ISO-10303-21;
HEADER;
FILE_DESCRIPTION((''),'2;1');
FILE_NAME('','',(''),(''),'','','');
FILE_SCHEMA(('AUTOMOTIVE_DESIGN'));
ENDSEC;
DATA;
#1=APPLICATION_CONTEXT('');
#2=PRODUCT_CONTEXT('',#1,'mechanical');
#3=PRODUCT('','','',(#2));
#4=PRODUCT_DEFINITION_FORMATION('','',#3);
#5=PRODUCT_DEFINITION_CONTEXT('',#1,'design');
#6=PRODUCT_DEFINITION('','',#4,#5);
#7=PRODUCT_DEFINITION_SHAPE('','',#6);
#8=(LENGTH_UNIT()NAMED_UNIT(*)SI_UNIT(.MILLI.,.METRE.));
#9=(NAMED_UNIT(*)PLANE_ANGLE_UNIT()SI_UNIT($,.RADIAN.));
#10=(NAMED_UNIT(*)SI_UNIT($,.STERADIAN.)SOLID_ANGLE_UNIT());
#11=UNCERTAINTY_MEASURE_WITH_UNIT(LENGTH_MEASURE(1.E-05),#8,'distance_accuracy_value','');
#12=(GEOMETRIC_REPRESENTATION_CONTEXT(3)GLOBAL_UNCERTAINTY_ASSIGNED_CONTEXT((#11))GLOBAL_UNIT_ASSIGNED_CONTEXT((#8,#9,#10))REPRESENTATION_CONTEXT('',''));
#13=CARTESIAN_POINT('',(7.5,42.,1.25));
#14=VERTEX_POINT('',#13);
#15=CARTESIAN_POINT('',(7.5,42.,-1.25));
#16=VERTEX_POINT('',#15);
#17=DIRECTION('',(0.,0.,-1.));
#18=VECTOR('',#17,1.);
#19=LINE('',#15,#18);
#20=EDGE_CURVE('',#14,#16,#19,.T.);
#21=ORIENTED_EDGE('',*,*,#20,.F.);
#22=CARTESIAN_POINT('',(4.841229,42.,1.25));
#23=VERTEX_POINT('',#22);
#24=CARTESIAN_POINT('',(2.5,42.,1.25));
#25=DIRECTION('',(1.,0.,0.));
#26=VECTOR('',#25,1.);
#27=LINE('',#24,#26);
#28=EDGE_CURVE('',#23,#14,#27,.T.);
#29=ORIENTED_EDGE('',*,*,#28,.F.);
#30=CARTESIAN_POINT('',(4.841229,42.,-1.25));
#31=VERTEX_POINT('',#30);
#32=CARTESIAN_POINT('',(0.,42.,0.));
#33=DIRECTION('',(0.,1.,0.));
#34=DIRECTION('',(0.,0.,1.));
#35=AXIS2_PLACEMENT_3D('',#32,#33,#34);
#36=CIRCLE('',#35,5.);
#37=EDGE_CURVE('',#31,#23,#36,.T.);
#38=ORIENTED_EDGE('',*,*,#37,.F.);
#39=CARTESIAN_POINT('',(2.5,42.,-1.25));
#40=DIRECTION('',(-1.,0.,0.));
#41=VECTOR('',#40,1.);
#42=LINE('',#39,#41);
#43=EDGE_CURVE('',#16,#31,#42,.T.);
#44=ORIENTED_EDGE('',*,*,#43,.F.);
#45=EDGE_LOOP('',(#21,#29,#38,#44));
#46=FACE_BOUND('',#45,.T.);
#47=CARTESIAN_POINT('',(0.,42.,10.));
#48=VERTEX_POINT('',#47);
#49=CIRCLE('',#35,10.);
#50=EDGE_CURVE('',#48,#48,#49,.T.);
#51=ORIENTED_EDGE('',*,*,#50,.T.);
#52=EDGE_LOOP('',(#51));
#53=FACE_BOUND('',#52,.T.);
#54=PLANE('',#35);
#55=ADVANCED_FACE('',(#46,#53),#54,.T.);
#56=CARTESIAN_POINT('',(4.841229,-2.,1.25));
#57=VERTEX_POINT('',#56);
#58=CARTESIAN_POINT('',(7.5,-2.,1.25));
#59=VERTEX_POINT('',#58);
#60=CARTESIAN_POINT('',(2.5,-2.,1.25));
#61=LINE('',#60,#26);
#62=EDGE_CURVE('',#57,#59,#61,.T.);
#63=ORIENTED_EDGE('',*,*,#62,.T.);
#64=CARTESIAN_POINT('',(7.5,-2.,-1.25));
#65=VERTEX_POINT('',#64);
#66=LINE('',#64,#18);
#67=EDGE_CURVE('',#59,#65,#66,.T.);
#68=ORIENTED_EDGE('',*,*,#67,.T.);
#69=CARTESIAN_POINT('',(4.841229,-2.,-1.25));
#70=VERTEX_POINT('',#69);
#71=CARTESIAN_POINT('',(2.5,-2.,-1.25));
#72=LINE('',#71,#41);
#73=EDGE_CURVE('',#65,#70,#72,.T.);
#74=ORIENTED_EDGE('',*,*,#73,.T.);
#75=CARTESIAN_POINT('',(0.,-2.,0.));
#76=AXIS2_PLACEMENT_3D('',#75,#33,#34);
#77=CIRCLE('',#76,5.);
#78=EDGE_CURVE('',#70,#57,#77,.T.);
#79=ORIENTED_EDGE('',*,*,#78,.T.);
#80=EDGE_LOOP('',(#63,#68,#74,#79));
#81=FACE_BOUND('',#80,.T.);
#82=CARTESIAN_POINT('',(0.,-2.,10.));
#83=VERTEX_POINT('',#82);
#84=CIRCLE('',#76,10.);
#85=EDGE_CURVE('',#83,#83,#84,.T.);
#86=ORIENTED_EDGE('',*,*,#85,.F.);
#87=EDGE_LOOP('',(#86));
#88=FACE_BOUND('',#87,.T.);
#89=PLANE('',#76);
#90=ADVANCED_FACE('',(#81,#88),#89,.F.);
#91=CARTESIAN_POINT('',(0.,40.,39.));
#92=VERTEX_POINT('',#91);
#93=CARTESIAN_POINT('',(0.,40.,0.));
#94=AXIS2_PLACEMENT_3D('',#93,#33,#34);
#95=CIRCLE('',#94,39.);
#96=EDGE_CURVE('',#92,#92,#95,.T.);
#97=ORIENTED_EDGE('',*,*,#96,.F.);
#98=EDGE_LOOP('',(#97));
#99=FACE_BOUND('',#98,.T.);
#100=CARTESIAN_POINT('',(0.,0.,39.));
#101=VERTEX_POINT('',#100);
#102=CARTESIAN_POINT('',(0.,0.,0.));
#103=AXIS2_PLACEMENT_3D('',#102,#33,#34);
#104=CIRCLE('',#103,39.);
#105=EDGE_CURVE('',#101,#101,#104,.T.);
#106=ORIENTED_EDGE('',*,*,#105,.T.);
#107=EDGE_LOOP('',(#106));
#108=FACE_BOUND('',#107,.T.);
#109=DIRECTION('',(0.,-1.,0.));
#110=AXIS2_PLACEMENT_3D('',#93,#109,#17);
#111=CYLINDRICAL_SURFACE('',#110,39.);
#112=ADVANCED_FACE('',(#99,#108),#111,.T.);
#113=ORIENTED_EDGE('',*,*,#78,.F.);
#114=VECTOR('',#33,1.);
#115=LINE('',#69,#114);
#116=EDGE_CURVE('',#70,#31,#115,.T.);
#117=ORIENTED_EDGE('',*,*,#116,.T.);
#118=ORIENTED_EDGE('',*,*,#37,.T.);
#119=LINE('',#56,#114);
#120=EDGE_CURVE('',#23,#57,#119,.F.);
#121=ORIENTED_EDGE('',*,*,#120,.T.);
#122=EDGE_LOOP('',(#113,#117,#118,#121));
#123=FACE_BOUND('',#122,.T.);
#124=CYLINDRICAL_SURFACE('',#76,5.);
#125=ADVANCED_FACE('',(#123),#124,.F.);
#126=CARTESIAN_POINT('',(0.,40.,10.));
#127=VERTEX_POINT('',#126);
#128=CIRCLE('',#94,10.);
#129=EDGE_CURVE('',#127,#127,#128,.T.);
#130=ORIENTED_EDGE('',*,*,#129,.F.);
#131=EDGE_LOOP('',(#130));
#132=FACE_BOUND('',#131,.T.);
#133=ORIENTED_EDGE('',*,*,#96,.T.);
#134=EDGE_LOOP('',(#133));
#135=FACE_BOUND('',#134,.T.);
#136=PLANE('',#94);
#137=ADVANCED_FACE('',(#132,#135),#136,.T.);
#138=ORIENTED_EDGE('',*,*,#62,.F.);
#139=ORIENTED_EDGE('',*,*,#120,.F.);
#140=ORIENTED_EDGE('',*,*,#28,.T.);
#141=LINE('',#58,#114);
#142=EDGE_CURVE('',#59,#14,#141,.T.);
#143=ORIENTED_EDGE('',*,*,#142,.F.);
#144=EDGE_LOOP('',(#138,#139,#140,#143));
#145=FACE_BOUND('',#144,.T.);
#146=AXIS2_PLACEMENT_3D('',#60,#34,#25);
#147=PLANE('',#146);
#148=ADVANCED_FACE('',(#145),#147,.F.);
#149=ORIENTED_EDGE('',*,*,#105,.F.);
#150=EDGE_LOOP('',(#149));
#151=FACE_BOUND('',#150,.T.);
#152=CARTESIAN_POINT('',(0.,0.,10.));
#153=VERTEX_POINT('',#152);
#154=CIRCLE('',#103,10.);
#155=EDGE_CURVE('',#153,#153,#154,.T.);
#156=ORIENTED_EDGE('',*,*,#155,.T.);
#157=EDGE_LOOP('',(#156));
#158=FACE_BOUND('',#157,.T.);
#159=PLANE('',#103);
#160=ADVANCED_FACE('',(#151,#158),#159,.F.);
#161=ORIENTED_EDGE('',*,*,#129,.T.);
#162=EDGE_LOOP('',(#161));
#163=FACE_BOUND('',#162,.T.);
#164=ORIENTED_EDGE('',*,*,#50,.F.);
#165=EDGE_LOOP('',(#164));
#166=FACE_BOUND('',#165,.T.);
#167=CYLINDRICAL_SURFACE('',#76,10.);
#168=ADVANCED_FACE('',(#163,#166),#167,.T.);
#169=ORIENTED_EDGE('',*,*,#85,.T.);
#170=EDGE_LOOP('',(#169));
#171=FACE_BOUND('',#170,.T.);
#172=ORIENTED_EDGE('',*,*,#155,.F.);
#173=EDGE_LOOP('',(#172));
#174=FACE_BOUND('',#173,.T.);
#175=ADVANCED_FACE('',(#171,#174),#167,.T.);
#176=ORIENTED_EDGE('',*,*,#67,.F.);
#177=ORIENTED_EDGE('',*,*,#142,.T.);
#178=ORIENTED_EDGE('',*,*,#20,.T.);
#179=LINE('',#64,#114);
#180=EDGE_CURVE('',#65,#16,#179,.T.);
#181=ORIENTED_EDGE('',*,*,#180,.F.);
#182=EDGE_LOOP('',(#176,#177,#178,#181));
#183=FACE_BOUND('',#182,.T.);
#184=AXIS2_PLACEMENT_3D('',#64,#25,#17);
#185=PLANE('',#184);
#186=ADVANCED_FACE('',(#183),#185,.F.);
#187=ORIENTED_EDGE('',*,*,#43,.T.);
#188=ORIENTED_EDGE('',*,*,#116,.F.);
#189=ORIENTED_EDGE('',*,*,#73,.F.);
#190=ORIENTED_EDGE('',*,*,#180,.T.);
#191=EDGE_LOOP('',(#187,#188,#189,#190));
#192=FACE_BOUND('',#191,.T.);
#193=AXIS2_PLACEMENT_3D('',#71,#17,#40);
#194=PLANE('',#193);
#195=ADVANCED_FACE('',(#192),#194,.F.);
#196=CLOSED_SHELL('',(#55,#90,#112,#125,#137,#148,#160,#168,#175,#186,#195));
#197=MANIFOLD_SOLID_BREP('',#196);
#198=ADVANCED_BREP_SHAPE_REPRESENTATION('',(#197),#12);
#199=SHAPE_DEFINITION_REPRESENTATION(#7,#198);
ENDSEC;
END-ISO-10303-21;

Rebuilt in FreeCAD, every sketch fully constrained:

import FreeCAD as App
import Part
import Sketcher
from FreeCAD import Vector


def add_polygon(sketch, points):
    """Adds a closed chain of lines whose ends are joined by coincident constraints."""
    first, n = sketch.GeometryCount, len(points)
    for a, b in zip(points, points[1:] + points[:1]):
        sketch.addGeometry(Part.LineSegment(App.Vector(*a, 0), App.Vector(*b, 0)), False)
    for i in range(n):
        sketch.addConstraint(Sketcher.Constraint("Coincident", first + i, 2, first + (i + 1) % n, 1))

doc = App.newDocument("Part")
params = doc.addObject("Spreadsheet::Sheet", "Params")
for row, (alias, value) in enumerate([
    ("sketch1_diameter", "78 mm"),
    ("pad1_length", "40 mm"),
    ("sketch2_diameter", "20 mm"),
    ("pad2_length", "2 mm"),
    ("pad2_length2", "42 mm"),
    ("sketch3_diameter", "10 mm"),
    ("sketch4_width", "5 mm"),
    ("sketch4_height", "2.5 mm"),
], start=1):
    params.set(f"A{row}", alias)
    params.set(f"B{row}", "=" + value)
    params.setAlias(f"B{row}", alias)

body = doc.addObject("PartDesign::Body", "Body")

# Sketch on XZ plane
sketch1 = body.newObject("Sketcher::SketchObject", "Sketch")
sketch1.AttachmentSupport = (doc.getObject("XZ_Plane"), [""])
sketch1.MapMode = "FlatFace"
sketch1.addGeometry(Part.Circle(Vector(0, 0, 0), Vector(0, 0, 1), 39), False)
sketch1.addConstraint([
    Sketcher.Constraint("Coincident", 0, 3, -1, 1),
    Sketcher.Constraint("Diameter", 0, 78.0),
])
sketch1.setExpression("Constraints[1]", "Params.sketch1_diameter")
pad1 = body.newObject("PartDesign::Pad", "Pad")
pad1.Profile = sketch1
pad1.setExpression("Length", "Params.pad1_length")
pad1.Reversed = True

# Sketch on XZ plane
sketch2 = body.newObject("Sketcher::SketchObject", "Sketch001")
sketch2.AttachmentSupport = (doc.getObject("XZ_Plane"), [""])
sketch2.MapMode = "FlatFace"
sketch2.AttachmentOffset = App.Placement(Vector(0, 0, -40), App.Rotation())
sketch2.addGeometry(Part.Circle(Vector(0, 0, 0), Vector(0, 0, 1), 10), False)
sketch2.addConstraint([
    Sketcher.Constraint("Coincident", 0, 3, -1, 1),
    Sketcher.Constraint("Diameter", 0, 20.0),
])
sketch2.setExpression("Constraints[1]", "Params.sketch2_diameter")
pad2 = body.newObject("PartDesign::Pad", "Pad001")
pad2.Profile = sketch2
pad2.Type = "TwoLengths"
pad2.setExpression("Length", "Params.pad2_length")
pad2.setExpression("Length2", "Params.pad2_length2")
pad2.Reversed = True

# Sketch on XZ plane
sketch3 = body.newObject("Sketcher::SketchObject", "Sketch002")
sketch3.AttachmentSupport = (doc.getObject("XZ_Plane"), [""])
sketch3.MapMode = "FlatFace"
sketch3.AttachmentOffset = App.Placement(Vector(0, 0, -42), App.Rotation())
sketch3.addGeometry(Part.Circle(Vector(0, 0, 0), Vector(0, 0, 1), 5), False)
sketch3.addConstraint([
    Sketcher.Constraint("Coincident", 0, 3, -1, 1),
    Sketcher.Constraint("Diameter", 0, 10.0),
])
sketch3.setExpression("Constraints[1]", "Params.sketch3_diameter")
pocket1 = body.newObject("PartDesign::Pocket", "Pocket")
pocket1.Profile = sketch3
pocket1.Type = "ThroughAll"
pocket1.Midplane = True

# Sketch on XZ plane
sketch4 = body.newObject("Sketcher::SketchObject", "Sketch003")
sketch4.AttachmentSupport = (doc.getObject("XZ_Plane"), [""])
sketch4.MapMode = "FlatFace"
sketch4.AttachmentOffset = App.Placement(Vector(0, 0, -42), App.Rotation())
add_polygon(sketch4, [(2.5, -1.25), (2.5, 1.25), (7.5, 1.25), (7.5, -1.25)])  # lines 0-3
sketch4.addConstraint([
    Sketcher.Constraint("Vertical", 0),
    Sketcher.Constraint("Horizontal", 1),
    Sketcher.Constraint("Vertical", 2),
    Sketcher.Constraint("Horizontal", 3),
    Sketcher.Constraint("DistanceX", 1, 1, 1, 2, 5.0),
    Sketcher.Constraint("DistanceY", 0, 1, 0, 2, 2.5),
    Sketcher.Constraint("DistanceX", -1, 1, 0, 2, 2.5),
    Sketcher.Constraint("DistanceY", -1, 1, 0, 2, 1.25),
])
sketch4.setExpression("Constraints[8]", "Params.sketch4_width")
sketch4.setExpression("Constraints[9]", "Params.sketch4_height")
pocket2 = body.newObject("PartDesign::Pocket", "Pocket001")
pocket2.Profile = sketch4
pocket2.Type = "ThroughAll"
pocket2.Reversed = True

doc.recompute()
